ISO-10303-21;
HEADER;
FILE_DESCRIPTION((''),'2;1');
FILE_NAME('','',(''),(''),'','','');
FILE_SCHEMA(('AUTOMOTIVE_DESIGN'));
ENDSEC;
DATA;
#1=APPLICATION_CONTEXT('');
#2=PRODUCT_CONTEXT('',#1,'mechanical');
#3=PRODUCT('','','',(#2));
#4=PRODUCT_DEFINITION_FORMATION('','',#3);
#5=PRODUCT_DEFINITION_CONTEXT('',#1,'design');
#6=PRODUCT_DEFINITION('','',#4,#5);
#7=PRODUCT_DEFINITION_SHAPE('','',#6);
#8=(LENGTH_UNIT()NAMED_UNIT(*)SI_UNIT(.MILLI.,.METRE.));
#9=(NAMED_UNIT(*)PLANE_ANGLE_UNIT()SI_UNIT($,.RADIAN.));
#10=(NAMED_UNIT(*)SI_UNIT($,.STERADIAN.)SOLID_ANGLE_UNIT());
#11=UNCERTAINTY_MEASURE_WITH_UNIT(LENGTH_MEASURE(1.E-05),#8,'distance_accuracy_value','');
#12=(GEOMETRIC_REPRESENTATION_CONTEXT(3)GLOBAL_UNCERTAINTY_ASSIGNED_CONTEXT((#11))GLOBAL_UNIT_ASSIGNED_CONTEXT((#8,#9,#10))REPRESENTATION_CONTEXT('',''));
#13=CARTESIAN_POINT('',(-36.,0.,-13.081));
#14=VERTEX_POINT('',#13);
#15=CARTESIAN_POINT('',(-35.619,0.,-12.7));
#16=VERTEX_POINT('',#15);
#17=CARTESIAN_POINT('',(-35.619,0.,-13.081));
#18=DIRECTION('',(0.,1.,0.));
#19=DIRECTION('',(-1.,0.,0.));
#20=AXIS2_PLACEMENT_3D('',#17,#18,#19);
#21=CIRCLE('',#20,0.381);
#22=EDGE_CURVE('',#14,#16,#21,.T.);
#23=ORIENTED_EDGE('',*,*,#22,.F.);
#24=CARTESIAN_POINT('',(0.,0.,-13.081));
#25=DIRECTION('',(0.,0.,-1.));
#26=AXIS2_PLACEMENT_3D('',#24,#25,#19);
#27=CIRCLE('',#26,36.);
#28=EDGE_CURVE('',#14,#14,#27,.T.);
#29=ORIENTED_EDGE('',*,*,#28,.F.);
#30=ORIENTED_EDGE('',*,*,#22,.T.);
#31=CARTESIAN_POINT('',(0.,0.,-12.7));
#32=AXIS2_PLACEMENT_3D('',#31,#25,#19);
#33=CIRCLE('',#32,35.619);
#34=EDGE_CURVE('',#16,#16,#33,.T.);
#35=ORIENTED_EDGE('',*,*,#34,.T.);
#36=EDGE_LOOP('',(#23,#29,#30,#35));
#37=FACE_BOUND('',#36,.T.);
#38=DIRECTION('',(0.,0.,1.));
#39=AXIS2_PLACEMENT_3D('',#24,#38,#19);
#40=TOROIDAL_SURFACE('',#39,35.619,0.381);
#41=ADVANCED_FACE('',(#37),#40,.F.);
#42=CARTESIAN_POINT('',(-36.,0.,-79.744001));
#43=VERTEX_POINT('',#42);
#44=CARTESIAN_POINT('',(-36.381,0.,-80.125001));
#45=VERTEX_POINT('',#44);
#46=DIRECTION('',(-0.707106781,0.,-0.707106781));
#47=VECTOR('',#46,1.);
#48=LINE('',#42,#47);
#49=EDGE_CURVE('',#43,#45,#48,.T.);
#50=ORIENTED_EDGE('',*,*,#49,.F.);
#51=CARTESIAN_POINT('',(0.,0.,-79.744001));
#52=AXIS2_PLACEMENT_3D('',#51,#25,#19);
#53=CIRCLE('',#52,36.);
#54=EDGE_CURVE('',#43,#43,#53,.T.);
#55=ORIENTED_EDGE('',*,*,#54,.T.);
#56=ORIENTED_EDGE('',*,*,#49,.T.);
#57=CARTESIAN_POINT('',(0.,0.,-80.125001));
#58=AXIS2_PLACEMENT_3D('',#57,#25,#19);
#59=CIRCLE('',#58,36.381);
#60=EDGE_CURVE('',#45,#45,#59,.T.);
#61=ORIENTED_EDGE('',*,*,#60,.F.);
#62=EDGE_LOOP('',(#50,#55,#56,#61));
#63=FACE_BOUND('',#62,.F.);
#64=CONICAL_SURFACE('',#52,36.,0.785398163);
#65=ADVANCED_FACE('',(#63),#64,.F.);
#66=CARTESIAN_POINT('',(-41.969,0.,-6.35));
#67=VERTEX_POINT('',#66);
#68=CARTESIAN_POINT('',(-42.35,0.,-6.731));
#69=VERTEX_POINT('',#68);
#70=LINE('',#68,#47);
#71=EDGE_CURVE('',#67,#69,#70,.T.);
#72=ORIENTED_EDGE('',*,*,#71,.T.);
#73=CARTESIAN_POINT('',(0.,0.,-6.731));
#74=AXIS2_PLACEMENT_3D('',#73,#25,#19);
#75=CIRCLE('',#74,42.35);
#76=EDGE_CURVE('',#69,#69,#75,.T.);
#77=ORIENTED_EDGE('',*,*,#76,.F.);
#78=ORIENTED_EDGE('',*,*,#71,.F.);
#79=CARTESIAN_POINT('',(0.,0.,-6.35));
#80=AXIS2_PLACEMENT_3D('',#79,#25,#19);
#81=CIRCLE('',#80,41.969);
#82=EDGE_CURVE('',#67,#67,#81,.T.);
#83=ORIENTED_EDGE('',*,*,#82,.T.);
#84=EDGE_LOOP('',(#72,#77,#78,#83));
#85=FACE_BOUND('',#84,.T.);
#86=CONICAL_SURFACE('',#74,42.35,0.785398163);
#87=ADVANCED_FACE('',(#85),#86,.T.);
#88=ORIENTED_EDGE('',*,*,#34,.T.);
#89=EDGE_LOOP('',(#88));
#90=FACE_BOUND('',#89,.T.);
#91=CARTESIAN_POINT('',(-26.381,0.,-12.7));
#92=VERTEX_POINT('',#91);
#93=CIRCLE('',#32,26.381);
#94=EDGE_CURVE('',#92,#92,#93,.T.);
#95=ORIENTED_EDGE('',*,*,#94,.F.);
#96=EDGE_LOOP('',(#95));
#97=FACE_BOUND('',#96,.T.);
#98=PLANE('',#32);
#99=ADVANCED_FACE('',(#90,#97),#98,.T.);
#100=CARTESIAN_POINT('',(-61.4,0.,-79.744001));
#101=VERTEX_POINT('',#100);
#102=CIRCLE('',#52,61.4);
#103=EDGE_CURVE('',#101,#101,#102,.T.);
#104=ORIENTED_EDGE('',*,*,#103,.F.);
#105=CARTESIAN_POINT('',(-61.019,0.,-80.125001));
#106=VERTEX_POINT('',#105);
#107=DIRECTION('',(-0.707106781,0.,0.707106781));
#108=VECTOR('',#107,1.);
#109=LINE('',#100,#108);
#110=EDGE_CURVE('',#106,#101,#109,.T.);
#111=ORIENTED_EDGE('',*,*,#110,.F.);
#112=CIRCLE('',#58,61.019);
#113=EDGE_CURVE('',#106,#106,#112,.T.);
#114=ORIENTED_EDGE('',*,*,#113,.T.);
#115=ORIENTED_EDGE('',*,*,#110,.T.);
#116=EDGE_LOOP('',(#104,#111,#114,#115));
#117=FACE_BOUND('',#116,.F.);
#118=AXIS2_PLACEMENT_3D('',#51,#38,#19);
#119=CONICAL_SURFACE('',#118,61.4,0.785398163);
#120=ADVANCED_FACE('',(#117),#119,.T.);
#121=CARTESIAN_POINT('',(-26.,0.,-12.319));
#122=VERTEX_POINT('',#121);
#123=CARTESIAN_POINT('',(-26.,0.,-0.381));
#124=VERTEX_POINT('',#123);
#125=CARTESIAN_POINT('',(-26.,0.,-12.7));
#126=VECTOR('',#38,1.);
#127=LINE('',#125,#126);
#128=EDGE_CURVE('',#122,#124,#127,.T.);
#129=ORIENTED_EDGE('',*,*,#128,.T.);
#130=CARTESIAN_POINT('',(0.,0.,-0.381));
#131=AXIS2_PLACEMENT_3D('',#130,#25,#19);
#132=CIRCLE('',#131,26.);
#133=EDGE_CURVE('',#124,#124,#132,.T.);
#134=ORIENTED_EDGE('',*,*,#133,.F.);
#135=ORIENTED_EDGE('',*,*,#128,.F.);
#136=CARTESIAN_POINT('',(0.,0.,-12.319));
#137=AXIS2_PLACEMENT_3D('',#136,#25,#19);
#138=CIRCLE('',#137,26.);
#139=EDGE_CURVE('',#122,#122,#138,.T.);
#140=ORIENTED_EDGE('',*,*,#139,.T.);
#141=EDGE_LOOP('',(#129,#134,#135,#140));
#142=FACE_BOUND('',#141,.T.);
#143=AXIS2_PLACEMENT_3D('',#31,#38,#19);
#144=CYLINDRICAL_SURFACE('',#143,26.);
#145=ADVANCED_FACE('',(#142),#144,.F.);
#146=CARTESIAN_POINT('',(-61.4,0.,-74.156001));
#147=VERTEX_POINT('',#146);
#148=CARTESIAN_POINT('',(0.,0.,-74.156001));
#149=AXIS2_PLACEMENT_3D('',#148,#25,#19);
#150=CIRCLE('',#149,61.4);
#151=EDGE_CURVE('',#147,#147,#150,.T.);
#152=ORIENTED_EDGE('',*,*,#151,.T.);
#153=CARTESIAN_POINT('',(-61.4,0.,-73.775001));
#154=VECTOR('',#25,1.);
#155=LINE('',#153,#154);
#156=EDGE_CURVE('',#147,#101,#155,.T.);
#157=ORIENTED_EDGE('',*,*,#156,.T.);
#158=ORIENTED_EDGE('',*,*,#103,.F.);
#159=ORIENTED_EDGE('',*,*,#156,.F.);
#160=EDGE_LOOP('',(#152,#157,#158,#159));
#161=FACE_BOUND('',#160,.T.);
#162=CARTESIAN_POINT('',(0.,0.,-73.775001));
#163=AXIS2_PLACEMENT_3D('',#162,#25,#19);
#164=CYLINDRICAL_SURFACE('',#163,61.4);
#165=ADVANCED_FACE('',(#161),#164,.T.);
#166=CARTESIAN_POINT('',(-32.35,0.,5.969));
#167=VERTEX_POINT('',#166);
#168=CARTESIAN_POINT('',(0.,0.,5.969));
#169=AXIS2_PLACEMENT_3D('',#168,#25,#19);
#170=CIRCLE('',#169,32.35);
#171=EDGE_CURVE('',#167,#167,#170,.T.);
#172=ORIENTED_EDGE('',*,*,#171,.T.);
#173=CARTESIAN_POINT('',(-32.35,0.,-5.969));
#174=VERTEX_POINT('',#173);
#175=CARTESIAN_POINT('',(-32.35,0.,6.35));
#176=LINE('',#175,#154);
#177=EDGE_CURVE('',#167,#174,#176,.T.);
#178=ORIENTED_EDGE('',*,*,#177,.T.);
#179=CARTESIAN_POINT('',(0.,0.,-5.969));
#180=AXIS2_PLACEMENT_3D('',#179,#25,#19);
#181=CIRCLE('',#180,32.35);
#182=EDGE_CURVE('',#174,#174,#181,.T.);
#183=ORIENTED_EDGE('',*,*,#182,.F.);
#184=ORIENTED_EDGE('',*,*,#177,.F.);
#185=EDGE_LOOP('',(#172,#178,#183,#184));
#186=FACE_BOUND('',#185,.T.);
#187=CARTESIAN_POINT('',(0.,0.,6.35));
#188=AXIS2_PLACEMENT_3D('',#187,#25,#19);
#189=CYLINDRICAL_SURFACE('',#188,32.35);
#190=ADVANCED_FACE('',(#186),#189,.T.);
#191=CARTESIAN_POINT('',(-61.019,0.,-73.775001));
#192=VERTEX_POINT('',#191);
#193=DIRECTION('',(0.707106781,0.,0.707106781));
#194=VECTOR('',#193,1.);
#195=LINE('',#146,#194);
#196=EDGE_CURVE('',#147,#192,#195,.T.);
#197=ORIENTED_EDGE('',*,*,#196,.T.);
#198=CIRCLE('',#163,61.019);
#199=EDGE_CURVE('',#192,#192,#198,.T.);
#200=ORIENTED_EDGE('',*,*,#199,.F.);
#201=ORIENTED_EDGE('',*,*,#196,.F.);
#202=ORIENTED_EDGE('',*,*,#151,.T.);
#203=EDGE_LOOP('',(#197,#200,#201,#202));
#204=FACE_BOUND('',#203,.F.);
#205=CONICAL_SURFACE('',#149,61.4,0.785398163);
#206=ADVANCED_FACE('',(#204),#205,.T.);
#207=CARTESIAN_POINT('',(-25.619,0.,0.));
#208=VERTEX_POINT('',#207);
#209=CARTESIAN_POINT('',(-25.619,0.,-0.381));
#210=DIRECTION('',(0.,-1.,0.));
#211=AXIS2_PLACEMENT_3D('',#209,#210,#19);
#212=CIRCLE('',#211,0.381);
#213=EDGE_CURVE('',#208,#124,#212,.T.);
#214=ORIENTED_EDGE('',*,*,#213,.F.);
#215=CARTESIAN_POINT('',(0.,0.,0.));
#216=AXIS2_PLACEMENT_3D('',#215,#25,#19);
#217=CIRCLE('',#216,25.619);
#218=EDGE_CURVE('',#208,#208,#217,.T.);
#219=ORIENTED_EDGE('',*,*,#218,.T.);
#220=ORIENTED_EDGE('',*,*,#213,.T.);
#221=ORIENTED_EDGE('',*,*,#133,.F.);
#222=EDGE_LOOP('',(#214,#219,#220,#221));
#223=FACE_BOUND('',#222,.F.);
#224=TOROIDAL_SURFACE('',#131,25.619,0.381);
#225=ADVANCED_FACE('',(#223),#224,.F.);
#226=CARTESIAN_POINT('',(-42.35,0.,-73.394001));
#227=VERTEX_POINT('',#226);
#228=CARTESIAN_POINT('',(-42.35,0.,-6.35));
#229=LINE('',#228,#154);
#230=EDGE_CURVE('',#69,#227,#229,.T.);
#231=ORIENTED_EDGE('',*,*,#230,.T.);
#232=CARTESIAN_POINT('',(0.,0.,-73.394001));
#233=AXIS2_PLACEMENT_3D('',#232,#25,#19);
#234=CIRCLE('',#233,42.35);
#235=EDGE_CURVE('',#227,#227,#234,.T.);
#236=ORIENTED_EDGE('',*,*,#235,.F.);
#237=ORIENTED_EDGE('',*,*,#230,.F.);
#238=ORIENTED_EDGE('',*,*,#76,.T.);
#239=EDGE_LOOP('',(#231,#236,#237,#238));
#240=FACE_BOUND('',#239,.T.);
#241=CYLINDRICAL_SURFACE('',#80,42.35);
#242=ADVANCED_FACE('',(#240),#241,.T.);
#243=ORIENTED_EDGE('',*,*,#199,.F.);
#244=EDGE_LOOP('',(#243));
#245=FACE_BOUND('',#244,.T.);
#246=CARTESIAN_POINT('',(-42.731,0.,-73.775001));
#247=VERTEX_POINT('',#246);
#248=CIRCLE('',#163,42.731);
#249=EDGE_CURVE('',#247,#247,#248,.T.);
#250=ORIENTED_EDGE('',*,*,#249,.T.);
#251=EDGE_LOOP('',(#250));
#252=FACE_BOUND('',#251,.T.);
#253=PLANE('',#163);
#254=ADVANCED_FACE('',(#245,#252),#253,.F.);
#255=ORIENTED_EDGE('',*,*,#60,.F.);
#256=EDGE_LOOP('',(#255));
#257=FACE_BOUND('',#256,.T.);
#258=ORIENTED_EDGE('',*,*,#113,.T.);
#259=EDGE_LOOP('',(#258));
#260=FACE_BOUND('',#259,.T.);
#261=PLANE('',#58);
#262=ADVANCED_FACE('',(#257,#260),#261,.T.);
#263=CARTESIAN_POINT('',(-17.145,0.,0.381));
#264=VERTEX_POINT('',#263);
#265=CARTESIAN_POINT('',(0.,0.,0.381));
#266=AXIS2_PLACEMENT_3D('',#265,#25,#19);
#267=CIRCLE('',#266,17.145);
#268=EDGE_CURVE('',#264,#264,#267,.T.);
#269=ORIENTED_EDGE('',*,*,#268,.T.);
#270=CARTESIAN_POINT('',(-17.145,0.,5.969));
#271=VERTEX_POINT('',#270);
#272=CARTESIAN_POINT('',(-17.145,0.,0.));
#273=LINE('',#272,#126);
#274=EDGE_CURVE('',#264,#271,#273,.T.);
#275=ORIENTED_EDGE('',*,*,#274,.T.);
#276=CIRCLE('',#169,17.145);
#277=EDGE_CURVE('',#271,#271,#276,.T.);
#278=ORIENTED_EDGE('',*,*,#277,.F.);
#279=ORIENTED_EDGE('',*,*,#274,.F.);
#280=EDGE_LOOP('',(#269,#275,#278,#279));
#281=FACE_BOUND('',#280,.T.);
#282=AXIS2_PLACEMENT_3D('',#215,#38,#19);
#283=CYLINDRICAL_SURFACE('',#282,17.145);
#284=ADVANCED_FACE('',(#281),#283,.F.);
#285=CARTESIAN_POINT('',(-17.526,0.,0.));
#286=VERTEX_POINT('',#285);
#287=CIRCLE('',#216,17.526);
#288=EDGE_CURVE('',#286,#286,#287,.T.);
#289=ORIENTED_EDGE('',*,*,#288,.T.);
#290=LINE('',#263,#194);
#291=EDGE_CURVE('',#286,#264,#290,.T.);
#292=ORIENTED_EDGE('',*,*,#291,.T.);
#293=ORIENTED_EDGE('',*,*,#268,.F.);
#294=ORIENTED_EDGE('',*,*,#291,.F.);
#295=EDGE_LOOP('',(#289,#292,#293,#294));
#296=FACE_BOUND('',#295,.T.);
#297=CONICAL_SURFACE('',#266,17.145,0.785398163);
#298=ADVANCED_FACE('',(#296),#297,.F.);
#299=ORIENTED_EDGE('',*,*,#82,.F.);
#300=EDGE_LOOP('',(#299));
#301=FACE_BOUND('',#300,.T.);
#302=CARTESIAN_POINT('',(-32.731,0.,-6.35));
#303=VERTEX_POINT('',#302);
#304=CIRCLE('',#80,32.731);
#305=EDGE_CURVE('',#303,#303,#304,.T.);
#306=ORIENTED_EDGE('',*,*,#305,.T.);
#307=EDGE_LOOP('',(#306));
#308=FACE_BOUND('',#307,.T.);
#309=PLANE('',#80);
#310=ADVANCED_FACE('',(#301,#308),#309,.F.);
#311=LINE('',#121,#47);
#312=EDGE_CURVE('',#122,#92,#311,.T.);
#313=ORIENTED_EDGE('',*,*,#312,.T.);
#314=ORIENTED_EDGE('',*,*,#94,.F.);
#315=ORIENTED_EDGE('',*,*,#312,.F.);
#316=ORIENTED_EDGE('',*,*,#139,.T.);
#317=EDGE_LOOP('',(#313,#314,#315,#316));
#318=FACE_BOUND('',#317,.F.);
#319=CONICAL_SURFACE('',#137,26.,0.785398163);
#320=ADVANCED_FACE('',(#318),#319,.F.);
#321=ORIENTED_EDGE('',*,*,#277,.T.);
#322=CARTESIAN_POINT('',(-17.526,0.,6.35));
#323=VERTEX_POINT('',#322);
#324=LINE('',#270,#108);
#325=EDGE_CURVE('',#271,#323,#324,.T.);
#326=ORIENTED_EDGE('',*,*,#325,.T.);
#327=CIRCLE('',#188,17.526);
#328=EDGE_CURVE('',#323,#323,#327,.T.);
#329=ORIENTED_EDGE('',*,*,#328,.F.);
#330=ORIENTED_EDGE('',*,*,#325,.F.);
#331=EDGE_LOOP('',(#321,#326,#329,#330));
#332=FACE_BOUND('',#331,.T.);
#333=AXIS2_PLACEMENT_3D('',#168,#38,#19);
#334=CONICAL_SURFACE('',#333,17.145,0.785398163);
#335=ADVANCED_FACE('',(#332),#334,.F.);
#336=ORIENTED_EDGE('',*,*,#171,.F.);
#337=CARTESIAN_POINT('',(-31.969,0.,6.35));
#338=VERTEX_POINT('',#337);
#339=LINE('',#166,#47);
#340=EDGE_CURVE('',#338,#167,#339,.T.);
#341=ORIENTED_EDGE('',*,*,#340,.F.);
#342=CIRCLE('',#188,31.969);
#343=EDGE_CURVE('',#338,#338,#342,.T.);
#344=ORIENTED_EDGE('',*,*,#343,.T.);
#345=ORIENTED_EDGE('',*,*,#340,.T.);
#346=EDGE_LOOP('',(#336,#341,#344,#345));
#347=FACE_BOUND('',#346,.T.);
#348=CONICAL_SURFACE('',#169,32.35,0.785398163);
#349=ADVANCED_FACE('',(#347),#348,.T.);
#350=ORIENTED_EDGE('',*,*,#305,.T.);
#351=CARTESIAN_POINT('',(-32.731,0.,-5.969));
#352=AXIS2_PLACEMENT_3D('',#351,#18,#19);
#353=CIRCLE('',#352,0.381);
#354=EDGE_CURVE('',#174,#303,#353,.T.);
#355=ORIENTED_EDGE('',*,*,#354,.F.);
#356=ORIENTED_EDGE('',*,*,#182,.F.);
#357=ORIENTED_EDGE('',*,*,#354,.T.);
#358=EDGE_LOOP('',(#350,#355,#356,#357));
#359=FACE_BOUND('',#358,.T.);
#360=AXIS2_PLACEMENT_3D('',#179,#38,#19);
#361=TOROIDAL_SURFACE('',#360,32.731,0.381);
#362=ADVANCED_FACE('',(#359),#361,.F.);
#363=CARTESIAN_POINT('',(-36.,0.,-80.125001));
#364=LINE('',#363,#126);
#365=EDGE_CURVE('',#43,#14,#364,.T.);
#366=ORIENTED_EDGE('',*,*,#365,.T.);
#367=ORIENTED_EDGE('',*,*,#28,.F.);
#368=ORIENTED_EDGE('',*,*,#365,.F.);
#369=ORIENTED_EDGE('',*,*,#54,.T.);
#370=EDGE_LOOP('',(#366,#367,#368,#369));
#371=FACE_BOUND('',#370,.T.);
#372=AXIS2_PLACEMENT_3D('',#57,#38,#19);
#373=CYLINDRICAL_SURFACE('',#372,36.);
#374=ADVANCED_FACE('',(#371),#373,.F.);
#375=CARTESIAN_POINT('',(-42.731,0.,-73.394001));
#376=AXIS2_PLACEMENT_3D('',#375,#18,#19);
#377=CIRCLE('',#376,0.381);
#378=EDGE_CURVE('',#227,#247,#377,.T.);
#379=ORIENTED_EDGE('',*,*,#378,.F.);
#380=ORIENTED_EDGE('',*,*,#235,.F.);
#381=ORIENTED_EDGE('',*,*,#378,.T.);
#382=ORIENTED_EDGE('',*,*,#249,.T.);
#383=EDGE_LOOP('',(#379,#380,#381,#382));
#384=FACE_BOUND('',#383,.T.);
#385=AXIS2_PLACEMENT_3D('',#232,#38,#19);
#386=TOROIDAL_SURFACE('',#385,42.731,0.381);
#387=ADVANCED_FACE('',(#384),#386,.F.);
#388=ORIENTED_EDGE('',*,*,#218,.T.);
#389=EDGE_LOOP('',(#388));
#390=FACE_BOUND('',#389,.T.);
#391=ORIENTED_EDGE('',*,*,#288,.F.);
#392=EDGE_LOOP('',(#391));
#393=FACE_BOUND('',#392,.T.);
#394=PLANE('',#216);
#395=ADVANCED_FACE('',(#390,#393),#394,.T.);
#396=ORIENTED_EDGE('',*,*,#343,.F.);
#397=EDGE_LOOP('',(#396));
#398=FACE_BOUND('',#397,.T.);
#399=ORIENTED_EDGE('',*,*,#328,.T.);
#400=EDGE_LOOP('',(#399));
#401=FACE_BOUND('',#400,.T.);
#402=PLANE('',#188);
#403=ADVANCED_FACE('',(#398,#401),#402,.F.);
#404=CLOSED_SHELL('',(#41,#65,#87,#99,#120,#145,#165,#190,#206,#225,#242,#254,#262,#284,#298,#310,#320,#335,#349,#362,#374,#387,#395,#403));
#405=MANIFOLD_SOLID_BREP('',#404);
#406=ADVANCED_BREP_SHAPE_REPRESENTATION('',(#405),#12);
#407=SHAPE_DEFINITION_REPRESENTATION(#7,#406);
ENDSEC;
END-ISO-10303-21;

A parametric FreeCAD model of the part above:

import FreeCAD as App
import Part
import Sketcher
from FreeCAD import Vector
Q = App.Units.Quantity


def edges_at(feature, points):
    """Names of the edges that pass closest to the given points."""
    edges = feature.Shape.Edges
    near = lambda p: min(range(len(edges)), key=lambda i: edges[i].distToShape(Part.Vertex(*p))[0])
    return sorted({f"Edge{near(p) + 1}" for p in points})

doc = App.newDocument("Part")
body = doc.addObject("PartDesign::Body", "Body")

# Sketch on XZ plane
sketch1 = body.newObject("Sketcher::SketchObject", "Sketch")
sketch1.AttachmentSupport = (doc.getObject("XZ_Plane"), [""])
sketch1.MapMode = "FlatFace"
sketch1.addGeometry(Part.LineSegment(Vector(-26, 0, 0), Vector(-17, 0, 0)), False)
sketch1.addGeometry(Part.LineSegment(Vector(-17, 0, 0), Vector(-17, 6, 0)), False)
sketch1.addGeometry(Part.LineSegment(Vector(-17, 6, 0), Vector(-32, 6, 0)), False)
sketch1.addGeometry(Part.LineSegment(Vector(-32, 6, 0), Vector(-32, -6, 0)), False)
sketch1.addGeometry(Part.LineSegment(Vector(-32, -6, 0), Vector(-42, -6, 0)), False)
sketch1.addGeometry(Part.LineSegment(Vector(-42, -6, 0), Vector(-42, -74, 0)), False)
sketch1.addGeometry(Part.LineSegment(Vector(-42, -74, 0), Vector(-61, -74, 0)), False)
sketch1.addGeometry(Part.LineSegment(Vector(-61, -74, 0), Vector(-61, -80, 0)), False)
sketch1.addGeometry(Part.LineSegment(Vector(-61, -80, 0), Vector(-36, -80, 0)), False)
sketch1.addGeometry(Part.LineSegment(Vector(-36, -80, 0), Vector(-36, -13, 0)), False)
sketch1.addGeometry(Part.LineSegment(Vector(-36, -13, 0), Vector(-26, -13, 0)), False)
sketch1.addGeometry(Part.LineSegment(Vector(-26, -13, 0), Vector(-26, 0, 0)), False)
sketch1.addConstraint(Sketcher.Constraint("Coincident", 0, 2, 1, 1))
sketch1.addConstraint(Sketcher.Constraint("Coincident", 1, 2, 2, 1))
sketch1.addConstraint(Sketcher.Constraint("Coincident", 2, 2, 3, 1))
sketch1.addConstraint(Sketcher.Constraint("Coincident", 3, 2, 4, 1))
sketch1.addConstraint(Sketcher.Constraint("Coincident", 4, 2, 5, 1))
sketch1.addConstraint(Sketcher.Constraint("Coincident", 5, 2, 6, 1))
sketch1.addConstraint(Sketcher.Constraint("Coincident", 6, 2, 7, 1))
sketch1.addConstraint(Sketcher.Constraint("Coincident", 7, 2, 8, 1))
sketch1.addConstraint(Sketcher.Constraint("Coincident", 8, 2, 9, 1))
sketch1.addConstraint(Sketcher.Constraint("Coincident", 9, 2, 10, 1))
sketch1.addConstraint(Sketcher.Constraint("Coincident", 10, 2, 11, 1))
sketch1.addConstraint(Sketcher.Constraint("Coincident", 11, 2, 0, 1))
sketch1.addConstraint(Sketcher.Constraint("Horizontal", 0))
sketch1.addConstraint(Sketcher.Constraint("Vertical", 1))
sketch1.addConstraint(Sketcher.Constraint("Horizontal", 2))
sketch1.addConstraint(Sketcher.Constraint("Vertical", 3))
sketch1.addConstraint(Sketcher.Constraint("Horizontal", 4))
sketch1.addConstraint(Sketcher.Constraint("Vertical", 5))
sketch1.addConstraint(Sketcher.Constraint("Horizontal", 6))
sketch1.addConstraint(Sketcher.Constraint("Vertical", 7))
sketch1.addConstraint(Sketcher.Constraint("Horizontal", 8))
sketch1.addConstraint(Sketcher.Constraint("Vertical", 9))
sketch1.addConstraint(Sketcher.Constraint("Horizontal", 10))
sketch1.addConstraint(Sketcher.Constraint("Vertical", 11))
sketch1.addConstraint(Sketcher.Constraint("PointOnObject", 0, 2, -1))
sketch1.addConstraint(Sketcher.Constraint("Equal", 4, 10))
sketch1.addConstraint(Sketcher.Constraint("Equal", 1, 7))
sketch1.addConstraint(Sketcher.Constraint("Equal", 5, 9))
sketch1.addConstraint(Sketcher.Constraint("DistanceX", 8, 1, 8, 2, Q("1 in")))
sketch1.addConstraint(Sketcher.Constraint("DistanceY", 3, 2, 3, 1, Q("0.5 in")))
sketch1.addConstraint(Sketcher.Constraint("DistanceX", 6, 2, 6, 1, Q("0.75 in")))
sketch1.addConstraint(Sketcher.Constraint("DistanceY", 1, 1, 1, 2, Q("0.25 in")))
sketch1.addConstraint(Sketcher.Constraint("DistanceX", 0, 2, -1, 1, Q("0.675 in")))
sketch1.addConstraint(Sketcher.Constraint("DistanceX", 0, 1, 0, 2, Q("8.855 mm")))
sketch1.addConstraint(Sketcher.Constraint("DistanceX", 4, 2, 4, 1, Q("10 mm")))
sketch1.addConstraint(Sketcher.Constraint("DistanceY", 5, 2, 5, 1, Q("67.425001 mm")))
revolution = body.newObject("PartDesign::Revolution", "Revolution")
revolution.Profile = sketch1
revolution.ReferenceAxis = (sketch1, ["V_Axis"])
revolution.Angle = 360
doc.recompute()

fillet = body.newObject("PartDesign::Fillet", "Fillet")
fillet.Base = (revolution, edges_at(revolution, [
    (32.35, 0, -6.35),
    (42.35, 0, -73.775),
    (36, 0, -12.7),
    (26, 0, 0),
]))
fillet.Radius = Q("0.015 in")
doc.recompute()

chamfer = body.newObject("PartDesign::Chamfer", "Chamfer")
chamfer.Base = (fillet, edges_at(fillet, [
    (32.35, 0, 6.35),
    (17.145, 0, 6.35),
    (42.35, 0, -6.35),
    (61.4, 0, -73.775),
    (61.4, 0, -80.125),
    (36, 0, -80.125),
    (26, 0, -12.7),
    (17.145, 0, 0),
]))
chamfer.Size = Q("0.015 in")

doc.recompute()
